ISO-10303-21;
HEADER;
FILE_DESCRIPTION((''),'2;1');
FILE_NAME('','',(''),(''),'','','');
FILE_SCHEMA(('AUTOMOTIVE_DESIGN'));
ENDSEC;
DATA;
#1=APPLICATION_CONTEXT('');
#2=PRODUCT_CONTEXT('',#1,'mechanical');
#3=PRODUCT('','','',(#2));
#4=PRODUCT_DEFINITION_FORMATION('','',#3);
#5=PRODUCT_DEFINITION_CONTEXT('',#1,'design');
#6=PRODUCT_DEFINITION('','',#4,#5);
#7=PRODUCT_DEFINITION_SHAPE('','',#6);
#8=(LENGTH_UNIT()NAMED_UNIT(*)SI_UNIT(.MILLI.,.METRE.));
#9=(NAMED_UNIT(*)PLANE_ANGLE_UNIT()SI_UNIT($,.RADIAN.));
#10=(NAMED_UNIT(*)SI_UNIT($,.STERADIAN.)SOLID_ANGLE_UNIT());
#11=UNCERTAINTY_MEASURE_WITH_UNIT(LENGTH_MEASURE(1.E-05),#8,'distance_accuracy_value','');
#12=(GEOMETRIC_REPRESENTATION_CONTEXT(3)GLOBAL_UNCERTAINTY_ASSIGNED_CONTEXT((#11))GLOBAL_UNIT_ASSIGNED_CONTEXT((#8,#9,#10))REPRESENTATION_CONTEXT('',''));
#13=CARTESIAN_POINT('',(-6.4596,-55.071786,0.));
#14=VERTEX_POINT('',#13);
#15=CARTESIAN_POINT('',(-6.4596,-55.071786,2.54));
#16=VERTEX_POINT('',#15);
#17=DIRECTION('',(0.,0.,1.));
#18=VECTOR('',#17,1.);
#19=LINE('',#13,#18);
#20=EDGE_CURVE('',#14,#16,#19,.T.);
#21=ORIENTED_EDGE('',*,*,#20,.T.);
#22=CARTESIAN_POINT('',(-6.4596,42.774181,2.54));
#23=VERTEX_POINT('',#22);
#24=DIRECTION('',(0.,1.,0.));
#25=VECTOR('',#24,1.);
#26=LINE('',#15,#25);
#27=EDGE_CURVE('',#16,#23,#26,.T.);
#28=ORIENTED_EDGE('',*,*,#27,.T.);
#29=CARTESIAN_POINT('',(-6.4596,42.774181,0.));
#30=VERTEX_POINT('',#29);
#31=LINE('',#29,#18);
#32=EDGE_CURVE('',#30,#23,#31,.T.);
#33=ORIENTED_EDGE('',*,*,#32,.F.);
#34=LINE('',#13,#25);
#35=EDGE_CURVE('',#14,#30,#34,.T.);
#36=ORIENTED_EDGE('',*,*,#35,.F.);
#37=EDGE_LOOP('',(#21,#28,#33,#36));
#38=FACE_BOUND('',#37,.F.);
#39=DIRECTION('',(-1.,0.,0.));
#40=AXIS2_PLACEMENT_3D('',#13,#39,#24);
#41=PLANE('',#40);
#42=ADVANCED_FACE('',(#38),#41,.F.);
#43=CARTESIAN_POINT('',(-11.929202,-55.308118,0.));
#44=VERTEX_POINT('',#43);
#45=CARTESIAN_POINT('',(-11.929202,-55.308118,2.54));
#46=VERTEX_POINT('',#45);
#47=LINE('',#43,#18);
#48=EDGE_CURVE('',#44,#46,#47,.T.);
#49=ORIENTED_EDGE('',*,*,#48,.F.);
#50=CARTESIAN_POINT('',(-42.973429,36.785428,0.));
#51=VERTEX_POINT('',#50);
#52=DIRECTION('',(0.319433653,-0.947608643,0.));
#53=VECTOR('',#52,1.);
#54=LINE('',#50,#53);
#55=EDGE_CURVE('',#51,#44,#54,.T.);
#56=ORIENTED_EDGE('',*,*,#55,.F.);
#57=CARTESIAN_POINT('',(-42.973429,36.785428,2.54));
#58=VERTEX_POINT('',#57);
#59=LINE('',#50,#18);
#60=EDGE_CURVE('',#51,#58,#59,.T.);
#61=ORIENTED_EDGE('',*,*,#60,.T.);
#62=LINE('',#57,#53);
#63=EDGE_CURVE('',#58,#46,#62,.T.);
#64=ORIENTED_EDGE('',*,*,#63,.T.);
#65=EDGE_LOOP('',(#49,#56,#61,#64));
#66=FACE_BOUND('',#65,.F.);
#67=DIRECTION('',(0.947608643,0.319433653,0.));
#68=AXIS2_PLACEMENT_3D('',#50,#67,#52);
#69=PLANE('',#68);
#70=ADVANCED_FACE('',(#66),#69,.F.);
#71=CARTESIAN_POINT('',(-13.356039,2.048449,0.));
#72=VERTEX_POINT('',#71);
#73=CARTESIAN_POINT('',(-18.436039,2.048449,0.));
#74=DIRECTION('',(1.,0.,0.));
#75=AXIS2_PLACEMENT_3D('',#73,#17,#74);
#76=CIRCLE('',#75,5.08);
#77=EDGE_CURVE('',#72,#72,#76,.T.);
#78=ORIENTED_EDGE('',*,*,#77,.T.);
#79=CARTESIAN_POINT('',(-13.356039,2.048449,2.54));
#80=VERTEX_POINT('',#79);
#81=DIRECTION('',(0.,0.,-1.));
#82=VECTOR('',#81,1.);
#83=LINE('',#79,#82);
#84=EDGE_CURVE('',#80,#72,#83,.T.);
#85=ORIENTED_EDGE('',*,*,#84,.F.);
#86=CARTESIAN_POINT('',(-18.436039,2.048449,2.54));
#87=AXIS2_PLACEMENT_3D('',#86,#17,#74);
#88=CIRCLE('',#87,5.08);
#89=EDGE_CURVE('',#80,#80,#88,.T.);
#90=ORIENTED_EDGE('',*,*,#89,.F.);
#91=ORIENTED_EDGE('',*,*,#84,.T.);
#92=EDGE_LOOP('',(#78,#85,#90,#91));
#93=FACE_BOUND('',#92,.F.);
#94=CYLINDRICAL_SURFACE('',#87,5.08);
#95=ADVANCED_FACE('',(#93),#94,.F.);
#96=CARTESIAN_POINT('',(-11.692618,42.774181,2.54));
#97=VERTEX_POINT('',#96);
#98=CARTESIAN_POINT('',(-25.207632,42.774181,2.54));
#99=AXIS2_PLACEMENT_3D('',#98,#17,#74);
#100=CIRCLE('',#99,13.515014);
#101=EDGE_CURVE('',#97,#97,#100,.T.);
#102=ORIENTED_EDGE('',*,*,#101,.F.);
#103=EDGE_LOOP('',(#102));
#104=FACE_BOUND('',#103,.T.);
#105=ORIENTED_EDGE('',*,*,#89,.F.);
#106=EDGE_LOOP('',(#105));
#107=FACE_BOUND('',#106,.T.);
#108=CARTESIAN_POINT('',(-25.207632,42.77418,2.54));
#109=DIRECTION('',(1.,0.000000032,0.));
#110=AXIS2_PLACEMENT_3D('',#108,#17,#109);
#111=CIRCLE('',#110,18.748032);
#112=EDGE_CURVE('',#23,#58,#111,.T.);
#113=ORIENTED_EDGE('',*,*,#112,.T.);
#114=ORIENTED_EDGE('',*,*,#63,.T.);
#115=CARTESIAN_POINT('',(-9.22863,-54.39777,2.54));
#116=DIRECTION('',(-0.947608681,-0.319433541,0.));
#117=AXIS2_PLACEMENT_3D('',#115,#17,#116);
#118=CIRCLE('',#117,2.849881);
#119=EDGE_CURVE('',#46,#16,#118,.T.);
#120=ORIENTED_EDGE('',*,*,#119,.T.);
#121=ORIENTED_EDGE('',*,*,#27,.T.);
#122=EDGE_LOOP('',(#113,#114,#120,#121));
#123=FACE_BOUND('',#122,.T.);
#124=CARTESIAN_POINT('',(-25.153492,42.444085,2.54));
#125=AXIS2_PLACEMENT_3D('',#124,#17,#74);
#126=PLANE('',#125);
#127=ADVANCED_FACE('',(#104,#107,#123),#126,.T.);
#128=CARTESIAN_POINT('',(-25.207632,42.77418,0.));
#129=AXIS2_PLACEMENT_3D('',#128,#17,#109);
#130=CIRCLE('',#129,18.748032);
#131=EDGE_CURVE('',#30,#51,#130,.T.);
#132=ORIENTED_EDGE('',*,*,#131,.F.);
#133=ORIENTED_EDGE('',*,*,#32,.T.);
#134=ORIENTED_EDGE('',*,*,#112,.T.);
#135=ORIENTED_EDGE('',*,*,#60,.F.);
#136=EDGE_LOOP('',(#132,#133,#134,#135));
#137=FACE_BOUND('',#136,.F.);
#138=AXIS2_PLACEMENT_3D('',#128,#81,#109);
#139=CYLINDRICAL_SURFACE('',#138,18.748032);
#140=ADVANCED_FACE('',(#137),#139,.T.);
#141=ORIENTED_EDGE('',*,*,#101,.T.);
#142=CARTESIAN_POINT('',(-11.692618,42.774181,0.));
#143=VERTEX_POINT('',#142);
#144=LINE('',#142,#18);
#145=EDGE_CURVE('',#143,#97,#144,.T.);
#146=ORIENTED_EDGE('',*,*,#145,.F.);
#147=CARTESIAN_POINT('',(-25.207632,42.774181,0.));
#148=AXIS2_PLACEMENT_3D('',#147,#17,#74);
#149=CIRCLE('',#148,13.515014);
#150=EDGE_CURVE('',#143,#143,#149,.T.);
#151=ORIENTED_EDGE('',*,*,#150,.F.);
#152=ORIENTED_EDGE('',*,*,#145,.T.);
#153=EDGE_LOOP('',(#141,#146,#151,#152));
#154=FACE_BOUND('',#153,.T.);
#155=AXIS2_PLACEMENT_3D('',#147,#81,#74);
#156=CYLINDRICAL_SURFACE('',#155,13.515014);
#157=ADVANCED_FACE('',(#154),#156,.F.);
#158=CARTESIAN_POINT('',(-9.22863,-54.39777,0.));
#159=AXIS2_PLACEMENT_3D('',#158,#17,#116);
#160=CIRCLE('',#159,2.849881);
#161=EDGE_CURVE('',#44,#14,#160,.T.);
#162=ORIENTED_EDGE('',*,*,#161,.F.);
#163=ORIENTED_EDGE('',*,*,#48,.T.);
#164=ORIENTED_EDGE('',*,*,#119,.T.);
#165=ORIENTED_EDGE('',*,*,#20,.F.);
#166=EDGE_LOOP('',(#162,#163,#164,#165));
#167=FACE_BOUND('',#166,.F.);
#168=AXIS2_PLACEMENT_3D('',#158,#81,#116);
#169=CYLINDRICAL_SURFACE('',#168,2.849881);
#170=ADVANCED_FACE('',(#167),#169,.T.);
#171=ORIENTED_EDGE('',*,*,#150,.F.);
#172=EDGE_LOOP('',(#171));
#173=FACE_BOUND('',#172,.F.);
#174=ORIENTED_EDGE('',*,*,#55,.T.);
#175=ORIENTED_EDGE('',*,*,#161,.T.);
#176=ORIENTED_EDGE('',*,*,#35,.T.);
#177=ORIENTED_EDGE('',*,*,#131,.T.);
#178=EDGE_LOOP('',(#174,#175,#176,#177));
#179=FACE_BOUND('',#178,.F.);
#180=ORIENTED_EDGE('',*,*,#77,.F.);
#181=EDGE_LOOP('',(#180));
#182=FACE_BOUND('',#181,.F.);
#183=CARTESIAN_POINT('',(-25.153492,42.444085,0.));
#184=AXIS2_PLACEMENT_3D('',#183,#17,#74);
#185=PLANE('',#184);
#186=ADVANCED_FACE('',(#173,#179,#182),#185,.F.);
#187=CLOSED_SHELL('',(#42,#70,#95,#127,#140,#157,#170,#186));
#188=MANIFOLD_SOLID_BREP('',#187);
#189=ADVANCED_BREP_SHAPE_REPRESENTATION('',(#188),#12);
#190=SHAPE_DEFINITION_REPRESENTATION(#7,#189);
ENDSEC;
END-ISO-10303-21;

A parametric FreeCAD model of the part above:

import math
import FreeCAD as App
import Part
import Sketcher
from FreeCAD import Vector
Q = App.Units.Quantity

doc = App.newDocument("Part")
body = doc.addObject("PartDesign::Body", "Body")

sketch1 = body.newObject("Sketcher::SketchObject", "Sketch")
sketch1.AttachmentSupport = (doc.getObject("XY_Plane"), [""])
sketch1.MapMode = "FlatFace"
sketch1.addGeometry(Part.ArcOfCircle(Part.Circle(Vector(-25.2, 42.8, 0), Vector(0, 0, 1), 18.7), math.radians(0), math.radians(199)), False)
sketch1.addGeometry(Part.LineSegment(Vector(-43, 36.8, 0), Vector(-11.9, -55.3, 0)), False)
sketch1.addGeometry(Part.ArcOfCircle(Part.Circle(Vector(-9.2, -54.4, 0), Vector(0, 0, 1), 2.8), math.radians(-161), math.radians(-14)), False)
sketch1.addGeometry(Part.LineSegment(Vector(-6.5, -55.1, 0), Vector(-6.5, 42.8, 0)), False)
sketch1.addGeometry(Part.Circle(Vector(-25.2, 42.8, 0), Vector(0, 0, 1), 13.5), False)
sketch1.addConstraint(Sketcher.Constraint("Tangent", 0, 2, 1, 1))
sketch1.addConstraint(Sketcher.Constraint("Tangent", 1, 2, 2, 1))
sketch1.addConstraint(Sketcher.Constraint("Coincident", 2, 2, 3, 1))
sketch1.addConstraint(Sketcher.Constraint("Tangent", 3, 2, 0, 1))
sketch1.addConstraint(Sketcher.Constraint("Vertical", 3))
sketch1.addConstraint(Sketcher.Constraint("Coincident", 4, 3, 0, 3))
sketch1.addConstraint(Sketcher.Constraint("Radius", 2, Q("0.1122 in")))
sketch1.addConstraint(Sketcher.Constraint("Diameter", 4, Q("27.030028 mm")))
sketch1.addConstraint(Sketcher.Constraint("Radius", 0, Q("18.748032 mm")))
sketch1.addConstraint(Sketcher.Constraint("DistanceX", 2, 2, -1, 1, Q("6.4596 mm")))
sketch1.addConstraint(Sketcher.Constraint("DistanceX", 0, 2, 2, 3, Q("33.744799 mm")))
sketch1.addConstraint(Sketcher.Constraint("DistanceY", 2, 3, 0, 2, Q("91.183198 mm")))
sketch1.addConstraint(Sketcher.Constraint("DistanceY", -1, 1, 0, 3, Q("42.77418 mm")))
pad1 = body.newObject("PartDesign::Pad", "Pad")
pad1.Profile = sketch1
pad1.Length = Q("0.1 in")

sketch2 = body.newObject("Sketcher::SketchObject", "Sketch001")
sketch2.AttachmentSupport = (doc.getObject("XY_Plane"), [""])
sketch2.MapMode = "FlatFace"
sketch2.AttachmentOffset = App.Placement(Vector(0, 0, 0.1 * 25.4), App.Rotation())
sketch2.addGeometry(Part.Circle(Vector(-18, 2, 0), Vector(0, 0, 1), 5), False)
sketch2.addConstraint(Sketcher.Constraint("Diameter", 0, Q("0.4 in")))
sketch2.addConstraint(Sketcher.Constraint("DistanceX", 0, 3, -1, 1, Q("18.436039 mm")))
sketch2.addConstraint(Sketcher.Constraint("DistanceY", -1, 1, 0, 3, Q("2.048449 mm")))
pocket1 = body.newObject("PartDesign::Pocket", "Pocket")
pocket1.Profile = sketch2
pocket1.Length = Q("0.48 in")

doc.recompute()
